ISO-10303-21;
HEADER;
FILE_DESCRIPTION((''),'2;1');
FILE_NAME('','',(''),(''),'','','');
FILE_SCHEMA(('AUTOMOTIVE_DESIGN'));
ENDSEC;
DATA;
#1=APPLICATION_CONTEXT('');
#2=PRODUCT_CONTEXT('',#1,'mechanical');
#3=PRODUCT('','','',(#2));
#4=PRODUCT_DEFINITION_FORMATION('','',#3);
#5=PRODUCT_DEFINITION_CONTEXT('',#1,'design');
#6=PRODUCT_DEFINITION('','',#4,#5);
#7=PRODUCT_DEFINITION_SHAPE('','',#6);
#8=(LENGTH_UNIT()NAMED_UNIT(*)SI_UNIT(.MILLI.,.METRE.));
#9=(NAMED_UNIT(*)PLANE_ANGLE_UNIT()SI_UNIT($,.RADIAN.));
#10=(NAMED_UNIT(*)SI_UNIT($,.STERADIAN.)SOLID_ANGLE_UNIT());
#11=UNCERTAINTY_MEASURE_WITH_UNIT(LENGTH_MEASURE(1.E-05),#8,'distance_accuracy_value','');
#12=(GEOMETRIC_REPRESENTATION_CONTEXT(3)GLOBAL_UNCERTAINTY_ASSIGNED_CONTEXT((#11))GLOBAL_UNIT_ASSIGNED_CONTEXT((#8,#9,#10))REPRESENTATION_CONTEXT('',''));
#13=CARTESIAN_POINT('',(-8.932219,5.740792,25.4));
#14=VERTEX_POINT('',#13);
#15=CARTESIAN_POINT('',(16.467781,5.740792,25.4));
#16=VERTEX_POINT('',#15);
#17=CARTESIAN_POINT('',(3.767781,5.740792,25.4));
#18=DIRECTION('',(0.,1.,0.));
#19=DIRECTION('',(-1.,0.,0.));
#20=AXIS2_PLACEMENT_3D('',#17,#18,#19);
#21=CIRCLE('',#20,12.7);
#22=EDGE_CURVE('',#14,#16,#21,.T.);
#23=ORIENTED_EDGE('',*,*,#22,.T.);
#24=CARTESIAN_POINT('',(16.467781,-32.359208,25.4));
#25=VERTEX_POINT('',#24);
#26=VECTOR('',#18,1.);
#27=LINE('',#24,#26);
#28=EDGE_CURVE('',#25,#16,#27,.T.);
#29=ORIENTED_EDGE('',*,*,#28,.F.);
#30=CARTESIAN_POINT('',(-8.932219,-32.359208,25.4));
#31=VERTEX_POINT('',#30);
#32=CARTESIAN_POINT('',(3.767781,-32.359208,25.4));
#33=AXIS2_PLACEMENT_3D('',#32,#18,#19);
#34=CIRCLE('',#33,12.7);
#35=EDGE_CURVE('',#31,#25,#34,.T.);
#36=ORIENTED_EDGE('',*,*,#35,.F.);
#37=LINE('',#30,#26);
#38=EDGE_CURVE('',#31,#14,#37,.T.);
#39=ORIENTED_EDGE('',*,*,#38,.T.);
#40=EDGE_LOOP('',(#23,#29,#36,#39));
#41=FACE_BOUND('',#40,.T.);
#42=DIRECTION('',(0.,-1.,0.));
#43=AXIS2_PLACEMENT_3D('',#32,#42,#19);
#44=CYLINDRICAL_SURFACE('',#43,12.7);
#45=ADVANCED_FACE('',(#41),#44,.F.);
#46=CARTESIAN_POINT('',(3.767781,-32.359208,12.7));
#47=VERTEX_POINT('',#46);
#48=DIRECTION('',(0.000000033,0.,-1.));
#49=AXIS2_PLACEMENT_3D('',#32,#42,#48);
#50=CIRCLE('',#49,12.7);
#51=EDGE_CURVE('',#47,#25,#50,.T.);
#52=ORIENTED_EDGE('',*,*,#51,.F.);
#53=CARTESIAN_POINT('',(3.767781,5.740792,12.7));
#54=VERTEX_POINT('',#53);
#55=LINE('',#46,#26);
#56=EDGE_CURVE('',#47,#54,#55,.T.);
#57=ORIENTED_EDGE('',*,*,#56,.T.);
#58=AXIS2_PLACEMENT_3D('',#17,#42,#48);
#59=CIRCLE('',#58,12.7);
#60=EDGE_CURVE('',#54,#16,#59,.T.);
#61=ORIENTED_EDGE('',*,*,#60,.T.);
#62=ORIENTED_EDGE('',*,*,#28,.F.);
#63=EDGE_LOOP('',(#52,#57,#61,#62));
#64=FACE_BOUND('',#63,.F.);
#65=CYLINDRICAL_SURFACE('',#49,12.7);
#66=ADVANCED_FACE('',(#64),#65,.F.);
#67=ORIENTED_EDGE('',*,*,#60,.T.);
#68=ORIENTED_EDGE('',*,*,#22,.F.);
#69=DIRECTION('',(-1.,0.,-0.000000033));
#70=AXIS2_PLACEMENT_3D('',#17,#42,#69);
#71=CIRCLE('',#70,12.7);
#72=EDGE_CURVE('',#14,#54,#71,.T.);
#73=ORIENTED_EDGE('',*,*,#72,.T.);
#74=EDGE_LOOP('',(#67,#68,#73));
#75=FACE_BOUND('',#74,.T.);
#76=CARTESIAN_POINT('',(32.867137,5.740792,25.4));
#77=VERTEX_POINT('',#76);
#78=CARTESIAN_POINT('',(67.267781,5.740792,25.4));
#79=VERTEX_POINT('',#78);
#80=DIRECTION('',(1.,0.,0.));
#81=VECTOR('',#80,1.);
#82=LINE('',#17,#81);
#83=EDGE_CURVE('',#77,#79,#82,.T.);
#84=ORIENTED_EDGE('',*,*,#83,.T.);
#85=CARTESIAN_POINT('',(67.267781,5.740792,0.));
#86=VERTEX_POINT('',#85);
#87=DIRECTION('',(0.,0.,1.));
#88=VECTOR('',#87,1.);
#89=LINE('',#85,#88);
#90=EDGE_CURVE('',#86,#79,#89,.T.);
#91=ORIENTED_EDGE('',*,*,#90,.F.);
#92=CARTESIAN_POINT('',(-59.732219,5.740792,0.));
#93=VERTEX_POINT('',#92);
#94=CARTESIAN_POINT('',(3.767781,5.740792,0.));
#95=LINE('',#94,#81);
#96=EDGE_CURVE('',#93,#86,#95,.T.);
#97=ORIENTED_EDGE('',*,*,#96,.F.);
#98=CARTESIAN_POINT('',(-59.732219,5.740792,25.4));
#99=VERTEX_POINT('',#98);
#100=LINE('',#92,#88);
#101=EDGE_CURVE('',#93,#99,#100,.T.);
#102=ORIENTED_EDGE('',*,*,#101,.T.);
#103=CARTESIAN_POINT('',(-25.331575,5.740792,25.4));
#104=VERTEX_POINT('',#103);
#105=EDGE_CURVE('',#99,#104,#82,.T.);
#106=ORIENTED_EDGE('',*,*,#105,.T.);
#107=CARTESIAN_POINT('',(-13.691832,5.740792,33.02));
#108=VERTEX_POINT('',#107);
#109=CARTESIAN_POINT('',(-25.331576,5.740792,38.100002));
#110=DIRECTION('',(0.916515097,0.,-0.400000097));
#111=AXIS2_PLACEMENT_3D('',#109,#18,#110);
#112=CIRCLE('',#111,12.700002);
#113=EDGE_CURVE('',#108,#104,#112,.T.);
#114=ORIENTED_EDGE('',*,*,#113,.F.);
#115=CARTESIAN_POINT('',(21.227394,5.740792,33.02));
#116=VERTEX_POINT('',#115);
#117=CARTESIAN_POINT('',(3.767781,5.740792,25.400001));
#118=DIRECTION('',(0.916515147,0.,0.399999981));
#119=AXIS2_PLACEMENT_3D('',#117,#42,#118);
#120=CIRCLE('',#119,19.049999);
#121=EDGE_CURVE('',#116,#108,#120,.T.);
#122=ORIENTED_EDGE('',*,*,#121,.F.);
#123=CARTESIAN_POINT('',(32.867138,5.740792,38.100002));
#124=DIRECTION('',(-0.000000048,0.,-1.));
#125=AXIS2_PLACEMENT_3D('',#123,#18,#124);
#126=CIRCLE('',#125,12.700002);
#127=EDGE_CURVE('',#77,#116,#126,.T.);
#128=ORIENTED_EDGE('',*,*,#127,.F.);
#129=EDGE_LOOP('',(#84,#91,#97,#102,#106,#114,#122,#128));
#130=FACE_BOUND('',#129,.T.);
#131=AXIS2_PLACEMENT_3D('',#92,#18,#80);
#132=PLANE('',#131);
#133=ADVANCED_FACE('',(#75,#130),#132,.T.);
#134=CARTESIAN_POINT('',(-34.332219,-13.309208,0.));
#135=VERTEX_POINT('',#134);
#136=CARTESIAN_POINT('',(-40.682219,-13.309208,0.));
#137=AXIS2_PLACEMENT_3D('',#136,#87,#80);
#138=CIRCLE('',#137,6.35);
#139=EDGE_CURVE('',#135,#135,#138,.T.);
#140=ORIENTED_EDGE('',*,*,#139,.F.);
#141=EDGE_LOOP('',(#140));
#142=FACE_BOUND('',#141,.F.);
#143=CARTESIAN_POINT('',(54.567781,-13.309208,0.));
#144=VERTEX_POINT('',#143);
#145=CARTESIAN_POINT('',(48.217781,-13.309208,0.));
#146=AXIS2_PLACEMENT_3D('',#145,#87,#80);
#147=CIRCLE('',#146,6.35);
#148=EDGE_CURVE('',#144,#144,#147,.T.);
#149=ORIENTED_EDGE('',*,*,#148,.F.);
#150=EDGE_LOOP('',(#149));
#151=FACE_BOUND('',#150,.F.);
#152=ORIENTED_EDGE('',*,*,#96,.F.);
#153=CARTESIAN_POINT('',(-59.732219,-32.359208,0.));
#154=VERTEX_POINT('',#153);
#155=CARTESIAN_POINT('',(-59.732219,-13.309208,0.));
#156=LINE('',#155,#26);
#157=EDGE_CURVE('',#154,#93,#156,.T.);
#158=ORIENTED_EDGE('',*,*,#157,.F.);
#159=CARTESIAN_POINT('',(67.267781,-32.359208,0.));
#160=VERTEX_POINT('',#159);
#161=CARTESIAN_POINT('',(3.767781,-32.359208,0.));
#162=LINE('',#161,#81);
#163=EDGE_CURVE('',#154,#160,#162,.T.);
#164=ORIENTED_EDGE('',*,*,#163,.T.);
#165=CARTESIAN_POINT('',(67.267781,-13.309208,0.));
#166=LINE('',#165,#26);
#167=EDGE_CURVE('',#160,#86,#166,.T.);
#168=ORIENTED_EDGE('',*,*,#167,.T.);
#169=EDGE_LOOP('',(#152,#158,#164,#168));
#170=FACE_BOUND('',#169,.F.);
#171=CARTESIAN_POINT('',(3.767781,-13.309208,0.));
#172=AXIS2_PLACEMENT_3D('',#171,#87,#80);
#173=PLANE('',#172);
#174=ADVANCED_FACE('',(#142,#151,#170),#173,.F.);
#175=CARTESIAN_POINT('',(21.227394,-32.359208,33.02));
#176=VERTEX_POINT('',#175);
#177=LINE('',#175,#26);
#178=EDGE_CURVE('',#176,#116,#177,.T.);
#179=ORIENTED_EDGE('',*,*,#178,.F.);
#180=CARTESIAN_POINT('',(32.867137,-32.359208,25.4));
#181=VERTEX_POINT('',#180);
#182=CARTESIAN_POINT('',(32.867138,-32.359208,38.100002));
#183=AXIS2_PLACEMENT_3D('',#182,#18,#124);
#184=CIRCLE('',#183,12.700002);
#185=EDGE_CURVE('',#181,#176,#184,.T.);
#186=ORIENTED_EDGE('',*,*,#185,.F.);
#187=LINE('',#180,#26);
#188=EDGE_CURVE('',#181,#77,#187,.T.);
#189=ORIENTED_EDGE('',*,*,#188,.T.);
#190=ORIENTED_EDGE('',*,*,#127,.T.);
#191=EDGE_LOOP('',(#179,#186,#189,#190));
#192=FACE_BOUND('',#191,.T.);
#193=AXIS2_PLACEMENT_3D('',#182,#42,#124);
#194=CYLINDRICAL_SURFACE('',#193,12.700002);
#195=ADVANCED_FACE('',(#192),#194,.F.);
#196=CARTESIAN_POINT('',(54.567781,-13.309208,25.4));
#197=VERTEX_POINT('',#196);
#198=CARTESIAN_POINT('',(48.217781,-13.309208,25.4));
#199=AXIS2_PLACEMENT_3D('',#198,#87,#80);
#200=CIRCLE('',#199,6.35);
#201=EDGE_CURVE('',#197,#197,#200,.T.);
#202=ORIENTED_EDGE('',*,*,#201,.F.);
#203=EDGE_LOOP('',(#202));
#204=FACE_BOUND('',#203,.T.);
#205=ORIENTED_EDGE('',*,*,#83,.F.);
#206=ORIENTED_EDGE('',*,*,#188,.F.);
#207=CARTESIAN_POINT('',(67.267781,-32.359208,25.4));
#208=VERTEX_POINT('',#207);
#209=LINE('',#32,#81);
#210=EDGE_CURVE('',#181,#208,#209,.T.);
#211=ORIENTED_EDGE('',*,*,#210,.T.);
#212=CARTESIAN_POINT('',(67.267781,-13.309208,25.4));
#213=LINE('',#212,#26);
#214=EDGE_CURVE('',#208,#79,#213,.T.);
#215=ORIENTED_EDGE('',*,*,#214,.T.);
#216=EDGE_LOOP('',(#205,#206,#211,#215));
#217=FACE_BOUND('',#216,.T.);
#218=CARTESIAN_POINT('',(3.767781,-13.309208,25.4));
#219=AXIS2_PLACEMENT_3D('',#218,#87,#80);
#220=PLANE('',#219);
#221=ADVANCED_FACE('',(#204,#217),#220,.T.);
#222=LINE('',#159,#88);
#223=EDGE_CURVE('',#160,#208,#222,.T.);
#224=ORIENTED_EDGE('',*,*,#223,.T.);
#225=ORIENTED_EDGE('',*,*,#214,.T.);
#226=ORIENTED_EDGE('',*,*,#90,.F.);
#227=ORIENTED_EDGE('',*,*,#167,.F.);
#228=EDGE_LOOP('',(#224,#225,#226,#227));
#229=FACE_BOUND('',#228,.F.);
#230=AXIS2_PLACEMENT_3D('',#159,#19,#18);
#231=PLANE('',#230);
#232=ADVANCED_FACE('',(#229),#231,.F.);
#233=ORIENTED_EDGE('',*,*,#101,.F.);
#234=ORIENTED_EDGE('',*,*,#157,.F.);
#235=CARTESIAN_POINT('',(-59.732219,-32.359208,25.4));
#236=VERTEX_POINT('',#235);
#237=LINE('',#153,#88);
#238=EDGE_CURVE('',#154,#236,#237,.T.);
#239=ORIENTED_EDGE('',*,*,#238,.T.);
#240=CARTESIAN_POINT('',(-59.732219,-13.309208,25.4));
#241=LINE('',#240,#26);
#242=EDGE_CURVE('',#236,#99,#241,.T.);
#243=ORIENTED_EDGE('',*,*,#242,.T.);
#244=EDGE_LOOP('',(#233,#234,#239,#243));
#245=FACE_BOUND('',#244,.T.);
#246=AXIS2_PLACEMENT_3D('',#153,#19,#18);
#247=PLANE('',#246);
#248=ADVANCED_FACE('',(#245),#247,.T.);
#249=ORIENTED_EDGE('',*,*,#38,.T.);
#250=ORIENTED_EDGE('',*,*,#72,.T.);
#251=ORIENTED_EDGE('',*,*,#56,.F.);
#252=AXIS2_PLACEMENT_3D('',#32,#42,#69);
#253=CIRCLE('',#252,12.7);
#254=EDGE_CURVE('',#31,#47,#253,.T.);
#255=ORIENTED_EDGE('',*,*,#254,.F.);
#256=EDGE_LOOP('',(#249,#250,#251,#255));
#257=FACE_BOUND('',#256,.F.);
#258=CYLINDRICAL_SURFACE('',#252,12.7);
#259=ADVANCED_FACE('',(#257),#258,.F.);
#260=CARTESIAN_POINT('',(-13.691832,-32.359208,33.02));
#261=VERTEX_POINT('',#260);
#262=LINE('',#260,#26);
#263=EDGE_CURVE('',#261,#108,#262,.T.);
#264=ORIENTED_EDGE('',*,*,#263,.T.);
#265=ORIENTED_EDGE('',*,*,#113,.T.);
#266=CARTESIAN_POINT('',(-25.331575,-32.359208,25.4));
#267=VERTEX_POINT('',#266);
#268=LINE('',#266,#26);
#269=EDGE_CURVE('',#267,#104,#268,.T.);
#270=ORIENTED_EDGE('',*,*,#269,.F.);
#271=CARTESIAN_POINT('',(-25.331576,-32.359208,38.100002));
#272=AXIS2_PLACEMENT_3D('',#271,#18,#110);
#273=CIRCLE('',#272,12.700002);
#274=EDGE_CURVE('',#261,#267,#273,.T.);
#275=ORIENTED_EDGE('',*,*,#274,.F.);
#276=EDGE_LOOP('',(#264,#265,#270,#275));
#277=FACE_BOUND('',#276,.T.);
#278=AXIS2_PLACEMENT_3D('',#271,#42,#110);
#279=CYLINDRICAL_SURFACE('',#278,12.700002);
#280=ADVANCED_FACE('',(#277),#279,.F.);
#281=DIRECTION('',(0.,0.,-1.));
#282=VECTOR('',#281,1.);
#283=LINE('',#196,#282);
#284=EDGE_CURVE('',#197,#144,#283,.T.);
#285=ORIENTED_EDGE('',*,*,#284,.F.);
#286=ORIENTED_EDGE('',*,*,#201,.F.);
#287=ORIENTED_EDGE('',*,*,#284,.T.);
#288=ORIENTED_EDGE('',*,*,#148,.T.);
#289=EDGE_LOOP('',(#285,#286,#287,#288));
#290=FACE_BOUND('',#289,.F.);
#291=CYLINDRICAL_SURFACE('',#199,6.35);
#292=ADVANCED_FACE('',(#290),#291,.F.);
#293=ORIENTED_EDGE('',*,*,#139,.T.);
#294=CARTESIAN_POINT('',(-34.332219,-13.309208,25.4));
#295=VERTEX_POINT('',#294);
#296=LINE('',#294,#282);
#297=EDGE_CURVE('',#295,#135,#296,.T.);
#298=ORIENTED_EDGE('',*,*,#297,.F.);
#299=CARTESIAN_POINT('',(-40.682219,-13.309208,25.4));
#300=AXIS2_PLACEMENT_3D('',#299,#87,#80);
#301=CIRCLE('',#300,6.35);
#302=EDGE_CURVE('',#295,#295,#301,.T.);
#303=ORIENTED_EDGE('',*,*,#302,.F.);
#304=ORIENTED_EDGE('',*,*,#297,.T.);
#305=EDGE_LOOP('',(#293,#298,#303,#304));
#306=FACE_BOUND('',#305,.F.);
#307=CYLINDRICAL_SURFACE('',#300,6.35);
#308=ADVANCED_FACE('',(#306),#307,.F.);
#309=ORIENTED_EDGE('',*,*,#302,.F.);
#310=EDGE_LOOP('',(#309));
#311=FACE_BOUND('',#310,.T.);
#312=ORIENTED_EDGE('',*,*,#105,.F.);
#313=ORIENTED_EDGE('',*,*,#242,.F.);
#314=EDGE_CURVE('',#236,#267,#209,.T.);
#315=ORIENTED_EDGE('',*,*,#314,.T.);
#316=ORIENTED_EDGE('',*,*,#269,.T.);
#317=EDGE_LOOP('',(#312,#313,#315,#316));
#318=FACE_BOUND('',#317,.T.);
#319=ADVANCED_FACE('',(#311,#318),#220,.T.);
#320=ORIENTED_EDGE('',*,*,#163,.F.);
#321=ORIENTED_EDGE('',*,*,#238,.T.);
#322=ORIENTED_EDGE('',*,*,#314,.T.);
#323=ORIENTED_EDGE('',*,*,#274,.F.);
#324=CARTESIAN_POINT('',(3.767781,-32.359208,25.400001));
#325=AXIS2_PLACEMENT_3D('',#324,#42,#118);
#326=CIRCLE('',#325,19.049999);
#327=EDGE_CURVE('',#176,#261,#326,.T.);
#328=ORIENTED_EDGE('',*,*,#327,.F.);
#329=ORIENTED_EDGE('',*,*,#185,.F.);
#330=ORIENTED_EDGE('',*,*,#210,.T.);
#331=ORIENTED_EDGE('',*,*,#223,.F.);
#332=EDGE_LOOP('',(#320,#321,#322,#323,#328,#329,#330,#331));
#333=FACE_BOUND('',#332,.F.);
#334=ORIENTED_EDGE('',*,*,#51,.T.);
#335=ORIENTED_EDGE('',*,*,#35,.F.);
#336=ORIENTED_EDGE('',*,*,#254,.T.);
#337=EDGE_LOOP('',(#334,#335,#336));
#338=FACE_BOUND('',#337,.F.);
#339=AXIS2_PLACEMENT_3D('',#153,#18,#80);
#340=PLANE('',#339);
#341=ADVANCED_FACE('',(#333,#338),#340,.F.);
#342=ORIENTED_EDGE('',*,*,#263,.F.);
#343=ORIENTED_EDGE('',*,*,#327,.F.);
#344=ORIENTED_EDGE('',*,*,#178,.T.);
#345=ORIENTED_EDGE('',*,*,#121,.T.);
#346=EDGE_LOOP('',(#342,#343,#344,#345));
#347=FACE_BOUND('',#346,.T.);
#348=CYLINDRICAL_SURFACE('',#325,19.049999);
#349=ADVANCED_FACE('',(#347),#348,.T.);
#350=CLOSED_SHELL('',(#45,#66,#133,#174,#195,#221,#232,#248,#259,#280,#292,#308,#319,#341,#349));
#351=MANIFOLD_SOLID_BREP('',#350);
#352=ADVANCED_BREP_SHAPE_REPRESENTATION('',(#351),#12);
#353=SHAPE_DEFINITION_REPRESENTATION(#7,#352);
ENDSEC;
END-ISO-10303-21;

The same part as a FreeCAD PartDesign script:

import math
import FreeCAD as App
import Part
import Sketcher

V = App.Vector
Q = App.Units.Quantity

doc = App.newDocument("Part")
body = doc.addObject("PartDesign::Body", "Body")

sketch1 = doc.addObject("Sketcher::SketchObject", "Sketch")
body.addObject(sketch1)
sketch1.AttachmentSupport = (doc.XY_Plane, [""])
sketch1.MapMode = "FlatFace"
sketch1.addGeometry([
    Part.LineSegment(V(-60, 6, 0), V(-60, -32, 0)),
    Part.LineSegment(V(-60, -32, 0), V(67, -32, 0)),
    Part.LineSegment(V(67, -32, 0), V(67, 6, 0)),
    Part.LineSegment(V(67, 6, 0), V(-60, 6, 0)),
], False)
sketch1.addConstraint([
    Sketcher.Constraint("Coincident", 0, 2, 1, 1),
    Sketcher.Constraint("Coincident", 1, 2, 2, 1),
    Sketcher.Constraint("Coincident", 2, 2, 3, 1),
    Sketcher.Constraint("Coincident", 3, 2, 0, 1),
    Sketcher.Constraint("Vertical", 0),
    Sketcher.Constraint("Horizontal", 1),
    Sketcher.Constraint("Vertical", 2),
    Sketcher.Constraint("Horizontal", 3),
    Sketcher.Constraint("DistanceX", 1, 1, 1, 2, Q("5 in")),
    Sketcher.Constraint("DistanceY", 0, 2, 0, 1, Q("1.5 in")),
    Sketcher.Constraint("DistanceX", 0, 2, -1, 1, 59.732219),
    Sketcher.Constraint("DistanceY", 0, 2, -1, 1, 32.359208),
])
pad1 = doc.addObject("PartDesign::Pad", "Pad")
body.addObject(pad1)
pad1.Profile = sketch1
pad1.Length = Q("1 in")

sketch2 = doc.addObject("Sketcher::SketchObject", "Sketch001")
body.addObject(sketch2)
sketch2.AttachmentSupport = (doc.XZ_Plane, [""])
sketch2.MapMode = "FlatFace"
sketch2.AttachmentOffset = App.Placement(V(0, 0, 32.359208), App.Rotation())
sketch2.addGeometry([
    Part.LineSegment(V(-25, 25, 0), V(-9, 25, 0)),
    Part.ArcOfCircle(Part.Circle(V(4, 25, 0), V(0, 0, 1), 13), math.radians(0), math.radians(180)),
    Part.LineSegment(V(16, 25, 0), V(33, 25, 0)),
    Part.ArcOfCircle(Part.Circle(V(33, 38, 0), V(0, 0, 1), 13), math.radians(-156), math.radians(-90)),
    Part.ArcOfCircle(Part.Circle(V(4, 25, 0), V(0, 0, 1), 19), math.radians(24), math.radians(156)),
    Part.ArcOfCircle(Part.Circle(V(-25, 38, 0), V(0, 0, 1), 13), math.radians(-90), math.radians(-24)),
], False)
sketch2.addConstraint([
    Sketcher.Constraint("Coincident", 0, 2, 1, 2),
    Sketcher.Constraint("Coincident", 1, 1, 2, 1),
    Sketcher.Constraint("Tangent", 2, 2, 3, 2),
    Sketcher.Constraint("Tangent", 3, 1, 4, 1),
    Sketcher.Constraint("Tangent", 4, 2, 5, 2),
    Sketcher.Constraint("Tangent", 5, 1, 0, 1),
    Sketcher.Constraint("Horizontal", 0),
    Sketcher.Constraint("Horizontal", 2),
    Sketcher.Constraint("Coincident", 4, 3, 1, 3),
    Sketcher.Constraint("Equal", 3, 5),
    Sketcher.Constraint("Horizontal", 3, 3, 5, 3),
    Sketcher.Constraint("Horizontal", 4, 3, 0, 2),
    Sketcher.Constraint("Radius", 1, Q("0.5 in")),
    Sketcher.Constraint("Radius", 3, Q("0.5000001 in")),
    Sketcher.Constraint("Radius", 4, Q("0.75 in")),
    Sketcher.Constraint("DistanceY", -1, 1, 1, 3, Q("1 in")),
    Sketcher.Constraint("DistanceX", -1, 1, 1, 3, 3.767781),
])
pad2 = doc.addObject("PartDesign::Pad", "Pad001")
body.addObject(pad2)
pad2.Profile = sketch2
pad2.Length = Q("1.5 in")
pad2.Reversed = True

sketch3 = doc.addObject("Sketcher::SketchObject", "Sketch002")
body.addObject(sketch3)
sketch3.AttachmentSupport = (doc.XZ_Plane, [""])
sketch3.MapMode = "FlatFace"
sketch3.AttachmentOffset = App.Placement(V(0, 0, 32.359208), App.Rotation())
sketch3.addGeometry([
    Part.ArcOfCircle(Part.Circle(V(4, 25, 0), V(0, 0, 1), 13), math.radians(-180), math.radians(-90)),
    Part.ArcOfCircle(Part.Circle(V(4, 25, 0), V(0, 0, 1), 13), math.radians(-90), math.radians(0)),
    Part.LineSegment(V(16, 25, 0), V(-9, 25, 0)),
], False)
sketch3.addConstraint([
    Sketcher.Constraint("Tangent", 0, 2, 1, 1),
    Sketcher.Constraint("Coincident", 1, 2, 2, 1),
    Sketcher.Constraint("Coincident", 2, 2, 0, 1),
    Sketcher.Constraint("Horizontal", 2),
    Sketcher.Constraint("Equal", 0, 1),
    Sketcher.Constraint("Horizontal", 0, 3, 1, 2),
    Sketcher.Constraint("Vertical", 1, 3, 0, 2),
    Sketcher.Constraint("Radius", 0, Q("0.5 in")),
    Sketcher.Constraint("DistanceY", -1, 1, 0, 3, Q("1 in")),
    Sketcher.Constraint("DistanceX", -1, 1, 0, 3, 3.767781),
])
pocket1 = doc.addObject("PartDesign::Pocket", "Pocket")
body.addObject(pocket1)
pocket1.Profile = sketch3
pocket1.Length = Q("1.5 in")

sketch4 = doc.addObject("Sketcher::SketchObject", "Sketch003")
body.addObject(sketch4)
sketch4.AttachmentSupport = (doc.XY_Plane, [""])
sketch4.MapMode = "FlatFace"
sketch4.AttachmentOffset = App.Placement(V(0, 0, 1 * 25.4), App.Rotation())
sketch4.addGeometry([
    Part.Circle(V(-41, -13, 0), V(0, 0, 1), 6),
    Part.Circle(V(48, -13, 0), V(0, 0, 1), 6),
], False)
sketch4.addConstraint([
    Sketcher.Constraint("Equal", 0, 1),
    Sketcher.Constraint("Horizontal", 0, 3, 1, 3),
    Sketcher.Constraint("Diameter", 0, Q("0.5 in")),
    Sketcher.Constraint("DistanceX", 0, 3, 1, 3, Q("3.5 in")),
    Sketcher.Constraint("DistanceX", 0, 3, -1, 1, 40.682219),
    Sketcher.Constraint("DistanceY", 0, 3, -1, 1, 13.309208),
])
pocket2 = doc.addObject("PartDesign::Pocket", "Pocket001")
body.addObject(pocket2)
pocket2.Profile = sketch4
pocket2.Length = Q("1 in")

doc.recompute()
